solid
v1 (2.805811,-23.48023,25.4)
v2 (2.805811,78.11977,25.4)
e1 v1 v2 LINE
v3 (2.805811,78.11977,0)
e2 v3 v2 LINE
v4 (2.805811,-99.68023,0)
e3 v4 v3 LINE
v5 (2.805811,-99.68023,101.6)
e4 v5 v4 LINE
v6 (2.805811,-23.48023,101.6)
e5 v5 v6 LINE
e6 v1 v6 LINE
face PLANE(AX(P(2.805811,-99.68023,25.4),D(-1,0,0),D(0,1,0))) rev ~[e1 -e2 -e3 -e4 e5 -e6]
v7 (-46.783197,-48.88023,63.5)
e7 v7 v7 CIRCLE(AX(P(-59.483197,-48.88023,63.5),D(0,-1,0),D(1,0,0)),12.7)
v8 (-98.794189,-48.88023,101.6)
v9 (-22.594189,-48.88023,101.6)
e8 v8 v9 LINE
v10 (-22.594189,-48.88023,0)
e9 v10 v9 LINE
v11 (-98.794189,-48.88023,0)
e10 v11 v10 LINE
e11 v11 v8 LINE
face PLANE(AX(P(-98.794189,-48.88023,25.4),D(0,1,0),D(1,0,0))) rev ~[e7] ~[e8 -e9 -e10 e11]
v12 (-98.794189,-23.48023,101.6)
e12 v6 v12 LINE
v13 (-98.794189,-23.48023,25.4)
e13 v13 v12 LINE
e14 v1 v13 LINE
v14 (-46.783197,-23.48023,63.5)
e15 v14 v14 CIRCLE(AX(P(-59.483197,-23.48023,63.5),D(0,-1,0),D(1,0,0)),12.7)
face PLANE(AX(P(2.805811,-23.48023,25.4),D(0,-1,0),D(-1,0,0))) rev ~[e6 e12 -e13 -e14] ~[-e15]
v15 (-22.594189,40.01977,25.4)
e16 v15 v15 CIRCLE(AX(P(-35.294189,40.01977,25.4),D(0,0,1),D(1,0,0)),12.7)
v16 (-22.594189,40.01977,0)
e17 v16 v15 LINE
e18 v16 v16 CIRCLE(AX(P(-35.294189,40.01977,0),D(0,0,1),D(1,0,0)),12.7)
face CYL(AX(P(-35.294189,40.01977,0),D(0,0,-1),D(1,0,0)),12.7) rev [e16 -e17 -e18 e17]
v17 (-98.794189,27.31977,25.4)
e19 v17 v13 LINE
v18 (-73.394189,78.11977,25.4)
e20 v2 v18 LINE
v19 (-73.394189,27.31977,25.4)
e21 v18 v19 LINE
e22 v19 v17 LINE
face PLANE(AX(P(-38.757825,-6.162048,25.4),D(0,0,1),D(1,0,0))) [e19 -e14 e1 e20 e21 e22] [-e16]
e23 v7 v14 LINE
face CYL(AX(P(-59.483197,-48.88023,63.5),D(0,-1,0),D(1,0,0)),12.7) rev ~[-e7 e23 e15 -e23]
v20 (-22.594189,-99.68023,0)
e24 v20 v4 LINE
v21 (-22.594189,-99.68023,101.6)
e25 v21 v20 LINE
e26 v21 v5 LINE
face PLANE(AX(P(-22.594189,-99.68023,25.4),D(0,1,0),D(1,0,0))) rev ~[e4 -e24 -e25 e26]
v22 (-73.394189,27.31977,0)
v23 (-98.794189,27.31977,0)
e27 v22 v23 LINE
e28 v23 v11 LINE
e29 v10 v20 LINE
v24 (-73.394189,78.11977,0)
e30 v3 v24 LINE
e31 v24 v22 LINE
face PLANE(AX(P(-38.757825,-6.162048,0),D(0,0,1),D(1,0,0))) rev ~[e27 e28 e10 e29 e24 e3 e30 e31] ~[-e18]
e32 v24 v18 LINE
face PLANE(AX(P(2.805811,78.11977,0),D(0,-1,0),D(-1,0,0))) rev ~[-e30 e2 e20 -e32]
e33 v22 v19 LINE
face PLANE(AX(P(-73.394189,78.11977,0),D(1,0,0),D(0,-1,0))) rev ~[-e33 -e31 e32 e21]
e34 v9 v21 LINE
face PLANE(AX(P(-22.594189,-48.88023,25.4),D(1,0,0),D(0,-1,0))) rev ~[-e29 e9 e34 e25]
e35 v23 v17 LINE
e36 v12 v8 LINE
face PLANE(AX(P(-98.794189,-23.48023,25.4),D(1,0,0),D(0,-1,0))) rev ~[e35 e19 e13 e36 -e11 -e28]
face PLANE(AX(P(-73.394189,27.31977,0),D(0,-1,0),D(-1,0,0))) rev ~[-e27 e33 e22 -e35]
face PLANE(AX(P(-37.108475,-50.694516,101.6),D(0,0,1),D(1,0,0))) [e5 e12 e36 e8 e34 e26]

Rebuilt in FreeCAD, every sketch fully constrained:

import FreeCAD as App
import Part
import Sketcher
from FreeCAD import Vector
Q = App.Units.Quantity


def add_polygon(sketch, points):
    """Adds a closed chain of lines whose ends are joined by coincident constraints."""
    first, n = sketch.GeometryCount, len(points)
    for a, b in zip(points, points[1:] + points[:1]):
        sketch.addGeometry(Part.LineSegment(App.Vector(*a, 0), App.Vector(*b, 0)), False)
    for i in range(n):
        sketch.addConstraint(Sketcher.Constraint("Coincident", first + i, 2, first + (i + 1) % n, 1))

doc = App.newDocument("Part")
body = doc.addObject("PartDesign::Body", "Body")

# Sketch on XY plane
sketch1 = body.newObject("Sketcher::SketchObject", "Sketch")
sketch1.AttachmentSupport = (doc.getObject("XY_Plane"), [""])
sketch1.MapMode = "FlatFace"
add_polygon(sketch1, [(2.805811, 78.11977), (-73.394189, 78.11977), (-73.394189, 27.31977), (-98.794189, 27.31977), (-98.794189, -48.88023), (-22.594189, -48.88023), (-22.594189, -99.68023), (2.805811, -99.68023)])  # lines 0-7
sketch1.addGeometry(Part.Circle(Vector(-35.294189, 40.01977, 0), Vector(0, 0, 1), 12.7), False)  # 8
sketch1.addConstraint([
    Sketcher.Constraint("Horizontal", 0),
    Sketcher.Constraint("Vertical", 1),
    Sketcher.Constraint("Horizontal", 2),
    Sketcher.Constraint("Vertical", 3),
    Sketcher.Constraint("Horizontal", 4),
    Sketcher.Constraint("Vertical", 5),
    Sketcher.Constraint("Horizontal", 6),
    Sketcher.Constraint("Vertical", 7),
    Sketcher.Constraint("Equal", 0, 4),
    Sketcher.Constraint("Equal", 4, 3),
    Sketcher.Constraint("Equal", 1, 5),
    Sketcher.Constraint("Diameter", 8, Q("1 in")),
    Sketcher.Constraint("DistanceX", 0, 2, 0, 1, Q("3 in")),
    Sketcher.Constraint("DistanceX", 2, 2, 2, 1, Q("1 in")),
    Sketcher.Constraint("DistanceY", 1, 2, 1, 1, Q("2 in")),
    Sketcher.Constraint("DistanceX", 0, 2, 8, 3, Q("1.5 in")),
    Sketcher.Constraint("DistanceY", 8, 3, 0, 2, Q("1.5 in")),
    Sketcher.Constraint("DistanceX", 8, 3, -1, 1, Q("35.294189 mm")),
    Sketcher.Constraint("DistanceY", -1, 1, 8, 3, Q("40.01977 mm")),
])
pad1 = body.newObject("PartDesign::Pad", "Pad")
pad1.Profile = sketch1
pad1.Length = Q("1 in")

# Sketch on XY plane
sketch2 = body.newObject("Sketcher::SketchObject", "Sketch001")
sketch2.AttachmentSupport = (doc.getObject("XY_Plane"), [""])
sketch2.MapMode = "FlatFace"
sketch2.AttachmentOffset = App.Placement(Vector(0, 0, 1 * 25.4), App.Rotation())
add_polygon(sketch2, [(2.805811, -23.48023), (-98.794189, -23.48023), (-98.794189, -48.88023), (-22.594189, -48.88023), (-22.594189, -99.68023), (2.805811, -99.68023)])  # lines 0-5
sketch2.addConstraint([
    Sketcher.Constraint("Horizontal", 0),
    Sketcher.Constraint("Vertical", 1),
    Sketcher.Constraint("Horizontal", 2),
    Sketcher.Constraint("Vertical", 3),
    Sketcher.Constraint("Horizontal", 4),
    Sketcher.Constraint("Vertical", 5),
    Sketcher.Constraint("Equal", 4, 1),
    Sketcher.Constraint("Equal", 2, 5),
    Sketcher.Constraint("DistanceX", 0, 2, 0, 1, Q("4 in")),
    Sketcher.Constraint("DistanceX", 2, 1, 2, 2, Q("3 in")),
    Sketcher.Constraint("DistanceX", 0, 2, -1, 1, Q("98.794189 mm")),
    Sketcher.Constraint("DistanceY", 0, 2, -1, 1, Q("23.48023 mm")),
])
pad2 = body.newObject("PartDesign::Pad", "Pad001")
pad2.Profile = sketch2
pad2.Length = Q("3 in")

# Sketch on XZ plane
sketch3 = body.newObject("Sketcher::SketchObject", "Sketch002")
sketch3.AttachmentSupport = (doc.getObject("XZ_Plane"), [""])
sketch3.MapMode = "FlatFace"
sketch3.AttachmentOffset = App.Placement(Vector(0, 0, 48.88023), App.Rotation())
sketch3.addGeometry(Part.Circle(Vector(-59.483197, 63.5, 0), Vector(0, 0, 1), 12.7), False)
sketch3.addConstraint([
    Sketcher.Constraint("Diameter", 0, Q("1 in")),
    Sketcher.Constraint("DistanceY", -1, 1, 0, 3, Q("2.5 in")),
    Sketcher.Constraint("DistanceX", 0, 3, -1, 1, Q("59.483197 mm")),
])
pocket1 = body.newObject("PartDesign::Pocket", "Pocket")
pocket1.Profile = sketch3
pocket1.Length = Q("1 in")

doc.recompute()
